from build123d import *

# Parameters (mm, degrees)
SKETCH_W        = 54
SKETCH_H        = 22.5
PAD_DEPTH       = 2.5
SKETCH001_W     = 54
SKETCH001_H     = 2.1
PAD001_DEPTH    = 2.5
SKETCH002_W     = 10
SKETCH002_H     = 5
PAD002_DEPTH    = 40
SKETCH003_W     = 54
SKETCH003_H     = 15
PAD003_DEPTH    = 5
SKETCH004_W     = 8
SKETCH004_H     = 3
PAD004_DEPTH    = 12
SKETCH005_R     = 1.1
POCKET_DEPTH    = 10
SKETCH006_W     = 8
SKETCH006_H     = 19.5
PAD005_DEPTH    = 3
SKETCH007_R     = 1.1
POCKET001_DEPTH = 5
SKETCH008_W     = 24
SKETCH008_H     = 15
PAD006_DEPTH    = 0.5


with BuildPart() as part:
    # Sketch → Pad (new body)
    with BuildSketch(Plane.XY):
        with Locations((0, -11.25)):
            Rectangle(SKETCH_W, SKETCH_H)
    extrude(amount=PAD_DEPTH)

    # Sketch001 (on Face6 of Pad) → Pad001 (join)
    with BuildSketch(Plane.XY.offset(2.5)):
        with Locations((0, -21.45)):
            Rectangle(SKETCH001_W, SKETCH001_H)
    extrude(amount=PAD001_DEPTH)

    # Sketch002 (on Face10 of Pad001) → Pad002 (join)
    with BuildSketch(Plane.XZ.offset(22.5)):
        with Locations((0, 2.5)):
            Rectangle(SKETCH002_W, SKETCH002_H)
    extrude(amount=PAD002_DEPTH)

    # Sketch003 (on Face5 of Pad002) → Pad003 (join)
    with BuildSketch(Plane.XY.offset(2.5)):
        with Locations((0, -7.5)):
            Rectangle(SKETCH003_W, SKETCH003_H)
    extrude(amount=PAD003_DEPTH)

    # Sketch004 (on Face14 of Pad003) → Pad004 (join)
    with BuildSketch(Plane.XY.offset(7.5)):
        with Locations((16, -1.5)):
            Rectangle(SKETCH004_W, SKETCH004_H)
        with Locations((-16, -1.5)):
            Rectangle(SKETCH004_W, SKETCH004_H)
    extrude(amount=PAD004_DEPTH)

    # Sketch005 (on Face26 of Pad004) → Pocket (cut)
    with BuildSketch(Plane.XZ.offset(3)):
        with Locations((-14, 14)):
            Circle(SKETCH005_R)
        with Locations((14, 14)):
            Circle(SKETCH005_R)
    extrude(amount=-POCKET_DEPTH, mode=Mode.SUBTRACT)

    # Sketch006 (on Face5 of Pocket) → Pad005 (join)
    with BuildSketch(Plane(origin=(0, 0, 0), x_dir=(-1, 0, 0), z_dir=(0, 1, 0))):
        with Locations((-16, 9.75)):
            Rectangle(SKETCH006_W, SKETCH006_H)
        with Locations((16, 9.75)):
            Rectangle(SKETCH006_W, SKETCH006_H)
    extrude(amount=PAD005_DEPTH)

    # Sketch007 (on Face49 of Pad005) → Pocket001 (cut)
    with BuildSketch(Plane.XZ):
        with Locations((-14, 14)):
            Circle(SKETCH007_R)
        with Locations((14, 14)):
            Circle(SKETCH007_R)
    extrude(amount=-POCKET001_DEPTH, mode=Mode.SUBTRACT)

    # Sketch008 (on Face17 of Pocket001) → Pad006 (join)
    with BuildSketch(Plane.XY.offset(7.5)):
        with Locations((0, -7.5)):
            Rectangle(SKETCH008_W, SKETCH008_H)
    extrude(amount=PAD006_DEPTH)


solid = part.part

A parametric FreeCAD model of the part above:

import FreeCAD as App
import Part
import Sketcher

V = App.Vector


def add_polygon(sketch, points):
    """Adds a closed chain of lines whose ends are joined by coincident constraints."""
    first, n = sketch.GeometryCount, len(points)
    for a, b in zip(points, points[1:] + points[:1]):
        sketch.addGeometry(Part.LineSegment(App.Vector(*a, 0), App.Vector(*b, 0)), False)
    for i in range(n):
        sketch.addConstraint(Sketcher.Constraint("Coincident", first + i, 2, first + (i + 1) % n, 1))

doc = App.newDocument("Part")
body = doc.addObject("PartDesign::Body", "Body")

# Sketch on XY plane
sketch1 = body.newObject("Sketcher::SketchObject", "Sketch")
sketch1.AttachmentSupport = (doc.getObject("XY_Plane"), [""])
sketch1.MapMode = "FlatFace"
add_polygon(sketch1, [(-27, 0), (-27, -22), (27, -22), (27, 0)])  # lines 0-3
sketch1.addConstraint(Sketcher.Constraint("Vertical", 0))
sketch1.addConstraint(Sketcher.Constraint("Horizontal", 1))
sketch1.addConstraint(Sketcher.Constraint("Vertical", 2))
sketch1.addConstraint(Sketcher.Constraint("Horizontal", 3))
sketch1.addConstraint(Sketcher.Constraint("Symmetric", 2, 2, 3, 2, -1, 1))
sketch1.addConstraint(Sketcher.Constraint("DistanceX", 1, 1, 1, 2, 54.0))
sketch1.addConstraint(Sketcher.Constraint("DistanceY", 0, 2, 0, 1, 22.5))
pad1 = body.newObject("PartDesign::Pad", "Pad")
pad1.Profile = sketch1
pad1.Length = 2.5

# Sketch on XY plane
sketch2 = body.newObject("Sketcher::SketchObject", "Sketch001")
sketch2.AttachmentSupport = (doc.getObject("XY_Plane"), [""])
sketch2.MapMode = "FlatFace"
sketch2.AttachmentOffset = App.Placement(V(0, 0, 2.5), App.Rotation())
add_polygon(sketch2, [(-27, -20.4), (-27, -22.5), (27, -22.5), (27, -20.4)])  # lines 0-3
sketch2.addConstraint(Sketcher.Constraint("Vertical", 0))
sketch2.addConstraint(Sketcher.Constraint("Horizontal", 1))
sketch2.addConstraint(Sketcher.Constraint("Vertical", 2))
sketch2.addConstraint(Sketcher.Constraint("Horizontal", 3))
sketch2.addConstraint(Sketcher.Constraint("DistanceX", 1, 1, 1, 2, 54.0))
sketch2.addConstraint(Sketcher.Constraint("DistanceY", 0, 2, 0, 1, 2.1))
sketch2.addConstraint(Sketcher.Constraint("DistanceX", 0, 2, -1, 1, 27.0))
sketch2.addConstraint(Sketcher.Constraint("DistanceY", 0, 2, -1, 1, 22.5))
pad2 = body.newObject("PartDesign::Pad", "Pad001")
pad2.Profile = sketch2
pad2.Length = 2.5

# Sketch on XZ plane
sketch3 = body.newObject("Sketcher::SketchObject", "Sketch002")
sketch3.AttachmentSupport = (doc.getObject("XZ_Plane"), [""])
sketch3.MapMode = "FlatFace"
sketch3.AttachmentOffset = App.Placement(V(0, 0, 22.5), App.Rotation())
add_polygon(sketch3, [(-5, 5), (-5, 0), (5, 0), (5, 5)])  # lines 0-3
sketch3.addConstraint(Sketcher.Constraint("Vertical", 0))
sketch3.addConstraint(Sketcher.Constraint("Horizontal", 1))
sketch3.addConstraint(Sketcher.Constraint("Vertical", 2))
sketch3.addConstraint(Sketcher.Constraint("Horizontal", 3))
sketch3.addConstraint(Sketcher.Constraint("Symmetric", 0, 2, 1, 2, -1, 1))
sketch3.addConstraint(Sketcher.Constraint("DistanceX", 1, 1, 1, 2, 10.0))
sketch3.addConstraint(Sketcher.Constraint("DistanceY", 0, 2, 0, 1, 5.0))
pad3 = body.newObject("PartDesign::Pad", "Pad002")
pad3.Profile = sketch3
pad3.Length = 40

# Sketch on XY plane
sketch4 = body.newObject("Sketcher::SketchObject", "Sketch003")
sketch4.AttachmentSupport = (doc.getObject("XY_Plane"), [""])
sketch4.MapMode = "FlatFace"
sketch4.AttachmentOffset = App.Placement(V(0, 0, 2.5), App.Rotation())
add_polygon(sketch4, [(-27, 0), (-27, -15), (27, -15), (27, 0)])  # lines 0-3
sketch4.addConstraint(Sketcher.Constraint("Vertical", 0))
sketch4.addConstraint(Sketcher.Constraint("Horizontal", 1))
sketch4.addConstraint(Sketcher.Constraint("Vertical", 2))
sketch4.addConstraint(Sketcher.Constraint("Horizontal", 3))
sketch4.addConstraint(Sketcher.Constraint("Symmetric", 2, 2, 3, 2, -1, 1))
sketch4.addConstraint(Sketcher.Constraint("DistanceX", 1, 1, 1, 2, 54.0))
sketch4.addConstraint(Sketcher.Constraint("DistanceY", 0, 2, 0, 1, 15.0))
pad4 = body.newObject("PartDesign::Pad", "Pad003")
pad4.Profile = sketch4
pad4.Length = 5

# Sketch on XY plane
sketch5 = body.newObject("Sketcher::SketchObject", "Sketch004")
sketch5.AttachmentSupport = (doc.getObject("XY_Plane"), [""])
sketch5.MapMode = "FlatFace"
sketch5.AttachmentOffset = App.Placement(V(0, 0, 7.5), App.Rotation())
add_polygon(sketch5, [(12, 0), (12, -3), (20, -3), (20, 0)])  # lines 0-3
add_polygon(sketch5, [(-20, 0), (-20, -3), (-12, -3), (-12, 0)])  # lines 4-7
sketch5.addConstraint(Sketcher.Constraint("Vertical", 0))
sketch5.addConstraint(Sketcher.Constraint("Horizontal", 1))
sketch5.addConstraint(Sketcher.Constraint("Vertical", 2))
sketch5.addConstraint(Sketcher.Constraint("Horizontal", 3))
sketch5.addConstraint(Sketcher.Constraint("Vertical", 4))
sketch5.addConstraint(Sketcher.Constraint("Horizontal", 5))
sketch5.addConstraint(Sketcher.Constraint("Vertical", 6))
sketch5.addConstraint(Sketcher.Constraint("Horizontal", 7))
sketch5.addConstraint(Sketcher.Constraint("Symmetric", 3, 2, 6, 2, -1, 1))
sketch5.addConstraint(Sketcher.Constraint("Symmetric", 1, 2, 4, 2, -2))
sketch5.addConstraint(Sketcher.Constraint("PointOnObject", 2, 2, -1))
sketch5.addConstraint(Sketcher.Constraint("DistanceX", 1, 1, 1, 2, 8.0))
sketch5.addConstraint(Sketcher.Constraint("DistanceY", 0, 2, 0, 1, 3.0))
sketch5.addConstraint(Sketcher.Constraint("DistanceX", -1, 1, 0, 2, 12.0))
pad5 = body.newObject("PartDesign::Pad", "Pad004")
pad5.Profile = sketch5
pad5.Length = 12

# Sketch on XZ plane
sketch6 = body.newObject("Sketcher::SketchObject", "Sketch005")
sketch6.AttachmentSupport = (doc.getObject("XZ_Plane"), [""])
sketch6.MapMode = "FlatFace"
sketch6.AttachmentOffset = App.Placement(V(0, 0, 3), App.Rotation())
sketch6.addGeometry(Part.Circle(V(-14, 14, 0), V(0, 0, 1), 1.1), False)
sketch6.addGeometry(Part.Circle(V(14, 14, 0), V(0, 0, 1), 1.1), False)
sketch6.addConstraint(Sketcher.Constraint("Equal", 0, 1))
sketch6.addConstraint(Sketcher.Constraint("Symmetric", 0, 3, 1, 3, -2))
sketch6.addConstraint(Sketcher.Constraint("Diameter", 0, 2.2))
sketch6.addConstraint(Sketcher.Constraint("DistanceX", 0, 3, -1, 1, 14.0))
sketch6.addConstraint(Sketcher.Constraint("DistanceY", -1, 1, 0, 3, 14.0))
pocket1 = body.newObject("PartDesign::Pocket", "Pocket")
pocket1.Profile = sketch6
pocket1.Length = 10

# Sketch on XZ plane
sketch7 = body.newObject("Sketcher::SketchObject", "Sketch006")
sketch7.AttachmentSupport = (doc.getObject("XZ_Plane"), [""])
sketch7.MapMode = "FlatFace"
add_polygon(sketch7, [(20, 20), (20, 0), (12, 0), (12, 20)])  # lines 0-3
add_polygon(sketch7, [(-12, 20), (-12, 0), (-20, 0), (-20, 20)])  # lines 4-7
sketch7.addConstraint(Sketcher.Constraint("Vertical", 0))
sketch7.addConstraint(Sketcher.Constraint("Horizontal", 1))
sketch7.addConstraint(Sketcher.Constraint("Vertical", 2))
sketch7.addConstraint(Sketcher.Constraint("Horizontal", 3))
sketch7.addConstraint(Sketcher.Constraint("Vertical", 4))
sketch7.addConstraint(Sketcher.Constraint("Horizontal", 5))
sketch7.addConstraint(Sketcher.Constraint("Vertical", 6))
sketch7.addConstraint(Sketcher.Constraint("Horizontal", 7))
sketch7.addConstraint(Sketcher.Constraint("Symmetric", 1, 2, 4, 2, -1, 1))
sketch7.addConstraint(Sketcher.Constraint("Symmetric", 0, 2, 5, 2, -2))
sketch7.addConstraint(Sketcher.Constraint("Horizontal", 3, 2, 6, 2))
sketch7.addConstraint(Sketcher.Constraint("DistanceX", 1, 2, 1, 1, 8.0))
sketch7.addConstraint(Sketcher.Constraint("DistanceY", 0, 2, 0, 1, 19.5))
sketch7.addConstraint(Sketcher.Constraint("DistanceX", -1, 1, 0, 2, 20.0))
pad6 = body.newObject("PartDesign::Pad", "Pad005")
pad6.Profile = sketch7
pad6.Length = 3
pad6.Reversed = True

# Sketch on XZ plane
sketch8 = body.newObject("Sketcher::SketchObject", "Sketch007")
sketch8.AttachmentSupport = (doc.getObject("XZ_Plane"), [""])
sketch8.MapMode = "FlatFace"
sketch8.addGeometry(Part.Circle(V(-14, 14, 0), V(0, 0, 1), 1.1), False)
sketch8.addGeometry(Part.Circle(V(14, 14, 0), V(0, 0, 1), 1.1), False)
sketch8.addConstraint(Sketcher.Constraint("Equal", 0, 1))
sketch8.addConstraint(Sketcher.Constraint("Symmetric", 0, 3, 1, 3, -2))
sketch8.addConstraint(Sketcher.Constraint("Diameter", 0, 2.2))
sketch8.addConstraint(Sketcher.Constraint("DistanceX", 0, 3, -1, 1, 14.0))
sketch8.addConstraint(Sketcher.Constraint("DistanceY", -1, 1, 0, 3, 14.0))
pocket2 = body.newObject("PartDesign::Pocket", "Pocket001")
pocket2.Profile = sketch8
pocket2.Length = 5

# Sketch on XY plane
sketch9 = body.newObject("Sketcher::SketchObject", "Sketch008")
sketch9.AttachmentSupport = (doc.getObject("XY_Plane"), [""])
sketch9.MapMode = "FlatFace"
sketch9.AttachmentOffset = App.Placement(V(0, 0, 7.5), App.Rotation())
add_polygon(sketch9, [(-12, 0), (-12, -15), (12, -15), (12, 0)])  # lines 0-3
sketch9.addConstraint(Sketcher.Constraint("Vertical", 0))
sketch9.addConstraint(Sketcher.Constraint("Horizontal", 1))
sketch9.addConstraint(Sketcher.Constraint("Vertical", 2))
sketch9.addConstraint(Sketcher.Constraint("Horizontal", 3))
sketch9.addConstraint(Sketcher.Constraint("Symmetric", 2, 2, 3, 2, -1, 1))
sketch9.addConstraint(Sketcher.Constraint("DistanceX", 1, 1, 1, 2, 24.0))
sketch9.addConstraint(Sketcher.Constraint("DistanceY", 0, 2, 0, 1, 15.0))
pad7 = body.newObject("PartDesign::Pad", "Pad006")
pad7.Profile = sketch9
pad7.Length = 0.5

doc.recompute()
